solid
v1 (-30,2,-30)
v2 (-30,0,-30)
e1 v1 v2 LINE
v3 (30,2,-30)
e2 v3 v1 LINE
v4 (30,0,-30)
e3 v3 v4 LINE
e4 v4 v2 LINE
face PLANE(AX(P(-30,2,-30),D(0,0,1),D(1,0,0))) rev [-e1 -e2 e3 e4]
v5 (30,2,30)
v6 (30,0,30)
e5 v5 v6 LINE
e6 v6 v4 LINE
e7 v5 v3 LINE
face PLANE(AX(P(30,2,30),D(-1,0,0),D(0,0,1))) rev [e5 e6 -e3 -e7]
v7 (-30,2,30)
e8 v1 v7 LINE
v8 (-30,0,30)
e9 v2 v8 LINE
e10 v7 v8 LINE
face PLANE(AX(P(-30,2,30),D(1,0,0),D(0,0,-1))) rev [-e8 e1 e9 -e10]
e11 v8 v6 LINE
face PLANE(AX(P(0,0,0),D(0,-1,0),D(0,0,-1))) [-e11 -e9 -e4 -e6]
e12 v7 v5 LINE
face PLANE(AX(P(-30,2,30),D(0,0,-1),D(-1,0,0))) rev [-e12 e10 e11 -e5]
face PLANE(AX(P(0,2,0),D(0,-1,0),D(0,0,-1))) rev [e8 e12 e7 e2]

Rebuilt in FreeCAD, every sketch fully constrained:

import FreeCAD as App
import Part
import Sketcher

V = App.Vector
Q = App.Units.Quantity

doc = App.newDocument("Part")
body = doc.addObject("PartDesign::Body", "Body")

sketch1 = body.newObject("Sketcher::SketchObject", "Sketch")
sketch1.AttachmentSupport = (doc.getObject("XZ_Plane"), [""])
sketch1.MapMode = "FlatFace"
sketch1.addGeometry(Part.LineSegment(V(-30, -30, 0), V(-30, 30, 0)), False)
sketch1.addGeometry(Part.LineSegment(V(-30, 30, 0), V(30, 30, 0)), False)
sketch1.addGeometry(Part.LineSegment(V(30, 30, 0), V(30, -30, 0)), False)
sketch1.addGeometry(Part.LineSegment(V(30, -30, 0), V(-30, -30, 0)), False)
sketch1.addConstraint(Sketcher.Constraint("Coincident", 0, 2, 1, 1))
sketch1.addConstraint(Sketcher.Constraint("Coincident", 1, 2, 2, 1))
sketch1.addConstraint(Sketcher.Constraint("Coincident", 2, 2, 3, 1))
sketch1.addConstraint(Sketcher.Constraint("Coincident", 3, 2, 0, 1))
sketch1.addConstraint(Sketcher.Constraint("Vertical", 0))
sketch1.addConstraint(Sketcher.Constraint("Horizontal", 1))
sketch1.addConstraint(Sketcher.Constraint("Vertical", 2))
sketch1.addConstraint(Sketcher.Constraint("Horizontal", 3))
sketch1.addConstraint(Sketcher.Constraint("Symmetric", 0, 2, 2, 2, -1, 1))
sketch1.addConstraint(Sketcher.Constraint("Equal", 3, 0))
sketch1.addConstraint(Sketcher.Constraint("DistanceX", 1, 1, 1, 2, Q("60 mm")))
pad1 = body.newObject("PartDesign::Pad", "Pad")
pad1.Profile = sketch1
pad1.Length = 2
pad1.Reversed = True

doc.recompute()
